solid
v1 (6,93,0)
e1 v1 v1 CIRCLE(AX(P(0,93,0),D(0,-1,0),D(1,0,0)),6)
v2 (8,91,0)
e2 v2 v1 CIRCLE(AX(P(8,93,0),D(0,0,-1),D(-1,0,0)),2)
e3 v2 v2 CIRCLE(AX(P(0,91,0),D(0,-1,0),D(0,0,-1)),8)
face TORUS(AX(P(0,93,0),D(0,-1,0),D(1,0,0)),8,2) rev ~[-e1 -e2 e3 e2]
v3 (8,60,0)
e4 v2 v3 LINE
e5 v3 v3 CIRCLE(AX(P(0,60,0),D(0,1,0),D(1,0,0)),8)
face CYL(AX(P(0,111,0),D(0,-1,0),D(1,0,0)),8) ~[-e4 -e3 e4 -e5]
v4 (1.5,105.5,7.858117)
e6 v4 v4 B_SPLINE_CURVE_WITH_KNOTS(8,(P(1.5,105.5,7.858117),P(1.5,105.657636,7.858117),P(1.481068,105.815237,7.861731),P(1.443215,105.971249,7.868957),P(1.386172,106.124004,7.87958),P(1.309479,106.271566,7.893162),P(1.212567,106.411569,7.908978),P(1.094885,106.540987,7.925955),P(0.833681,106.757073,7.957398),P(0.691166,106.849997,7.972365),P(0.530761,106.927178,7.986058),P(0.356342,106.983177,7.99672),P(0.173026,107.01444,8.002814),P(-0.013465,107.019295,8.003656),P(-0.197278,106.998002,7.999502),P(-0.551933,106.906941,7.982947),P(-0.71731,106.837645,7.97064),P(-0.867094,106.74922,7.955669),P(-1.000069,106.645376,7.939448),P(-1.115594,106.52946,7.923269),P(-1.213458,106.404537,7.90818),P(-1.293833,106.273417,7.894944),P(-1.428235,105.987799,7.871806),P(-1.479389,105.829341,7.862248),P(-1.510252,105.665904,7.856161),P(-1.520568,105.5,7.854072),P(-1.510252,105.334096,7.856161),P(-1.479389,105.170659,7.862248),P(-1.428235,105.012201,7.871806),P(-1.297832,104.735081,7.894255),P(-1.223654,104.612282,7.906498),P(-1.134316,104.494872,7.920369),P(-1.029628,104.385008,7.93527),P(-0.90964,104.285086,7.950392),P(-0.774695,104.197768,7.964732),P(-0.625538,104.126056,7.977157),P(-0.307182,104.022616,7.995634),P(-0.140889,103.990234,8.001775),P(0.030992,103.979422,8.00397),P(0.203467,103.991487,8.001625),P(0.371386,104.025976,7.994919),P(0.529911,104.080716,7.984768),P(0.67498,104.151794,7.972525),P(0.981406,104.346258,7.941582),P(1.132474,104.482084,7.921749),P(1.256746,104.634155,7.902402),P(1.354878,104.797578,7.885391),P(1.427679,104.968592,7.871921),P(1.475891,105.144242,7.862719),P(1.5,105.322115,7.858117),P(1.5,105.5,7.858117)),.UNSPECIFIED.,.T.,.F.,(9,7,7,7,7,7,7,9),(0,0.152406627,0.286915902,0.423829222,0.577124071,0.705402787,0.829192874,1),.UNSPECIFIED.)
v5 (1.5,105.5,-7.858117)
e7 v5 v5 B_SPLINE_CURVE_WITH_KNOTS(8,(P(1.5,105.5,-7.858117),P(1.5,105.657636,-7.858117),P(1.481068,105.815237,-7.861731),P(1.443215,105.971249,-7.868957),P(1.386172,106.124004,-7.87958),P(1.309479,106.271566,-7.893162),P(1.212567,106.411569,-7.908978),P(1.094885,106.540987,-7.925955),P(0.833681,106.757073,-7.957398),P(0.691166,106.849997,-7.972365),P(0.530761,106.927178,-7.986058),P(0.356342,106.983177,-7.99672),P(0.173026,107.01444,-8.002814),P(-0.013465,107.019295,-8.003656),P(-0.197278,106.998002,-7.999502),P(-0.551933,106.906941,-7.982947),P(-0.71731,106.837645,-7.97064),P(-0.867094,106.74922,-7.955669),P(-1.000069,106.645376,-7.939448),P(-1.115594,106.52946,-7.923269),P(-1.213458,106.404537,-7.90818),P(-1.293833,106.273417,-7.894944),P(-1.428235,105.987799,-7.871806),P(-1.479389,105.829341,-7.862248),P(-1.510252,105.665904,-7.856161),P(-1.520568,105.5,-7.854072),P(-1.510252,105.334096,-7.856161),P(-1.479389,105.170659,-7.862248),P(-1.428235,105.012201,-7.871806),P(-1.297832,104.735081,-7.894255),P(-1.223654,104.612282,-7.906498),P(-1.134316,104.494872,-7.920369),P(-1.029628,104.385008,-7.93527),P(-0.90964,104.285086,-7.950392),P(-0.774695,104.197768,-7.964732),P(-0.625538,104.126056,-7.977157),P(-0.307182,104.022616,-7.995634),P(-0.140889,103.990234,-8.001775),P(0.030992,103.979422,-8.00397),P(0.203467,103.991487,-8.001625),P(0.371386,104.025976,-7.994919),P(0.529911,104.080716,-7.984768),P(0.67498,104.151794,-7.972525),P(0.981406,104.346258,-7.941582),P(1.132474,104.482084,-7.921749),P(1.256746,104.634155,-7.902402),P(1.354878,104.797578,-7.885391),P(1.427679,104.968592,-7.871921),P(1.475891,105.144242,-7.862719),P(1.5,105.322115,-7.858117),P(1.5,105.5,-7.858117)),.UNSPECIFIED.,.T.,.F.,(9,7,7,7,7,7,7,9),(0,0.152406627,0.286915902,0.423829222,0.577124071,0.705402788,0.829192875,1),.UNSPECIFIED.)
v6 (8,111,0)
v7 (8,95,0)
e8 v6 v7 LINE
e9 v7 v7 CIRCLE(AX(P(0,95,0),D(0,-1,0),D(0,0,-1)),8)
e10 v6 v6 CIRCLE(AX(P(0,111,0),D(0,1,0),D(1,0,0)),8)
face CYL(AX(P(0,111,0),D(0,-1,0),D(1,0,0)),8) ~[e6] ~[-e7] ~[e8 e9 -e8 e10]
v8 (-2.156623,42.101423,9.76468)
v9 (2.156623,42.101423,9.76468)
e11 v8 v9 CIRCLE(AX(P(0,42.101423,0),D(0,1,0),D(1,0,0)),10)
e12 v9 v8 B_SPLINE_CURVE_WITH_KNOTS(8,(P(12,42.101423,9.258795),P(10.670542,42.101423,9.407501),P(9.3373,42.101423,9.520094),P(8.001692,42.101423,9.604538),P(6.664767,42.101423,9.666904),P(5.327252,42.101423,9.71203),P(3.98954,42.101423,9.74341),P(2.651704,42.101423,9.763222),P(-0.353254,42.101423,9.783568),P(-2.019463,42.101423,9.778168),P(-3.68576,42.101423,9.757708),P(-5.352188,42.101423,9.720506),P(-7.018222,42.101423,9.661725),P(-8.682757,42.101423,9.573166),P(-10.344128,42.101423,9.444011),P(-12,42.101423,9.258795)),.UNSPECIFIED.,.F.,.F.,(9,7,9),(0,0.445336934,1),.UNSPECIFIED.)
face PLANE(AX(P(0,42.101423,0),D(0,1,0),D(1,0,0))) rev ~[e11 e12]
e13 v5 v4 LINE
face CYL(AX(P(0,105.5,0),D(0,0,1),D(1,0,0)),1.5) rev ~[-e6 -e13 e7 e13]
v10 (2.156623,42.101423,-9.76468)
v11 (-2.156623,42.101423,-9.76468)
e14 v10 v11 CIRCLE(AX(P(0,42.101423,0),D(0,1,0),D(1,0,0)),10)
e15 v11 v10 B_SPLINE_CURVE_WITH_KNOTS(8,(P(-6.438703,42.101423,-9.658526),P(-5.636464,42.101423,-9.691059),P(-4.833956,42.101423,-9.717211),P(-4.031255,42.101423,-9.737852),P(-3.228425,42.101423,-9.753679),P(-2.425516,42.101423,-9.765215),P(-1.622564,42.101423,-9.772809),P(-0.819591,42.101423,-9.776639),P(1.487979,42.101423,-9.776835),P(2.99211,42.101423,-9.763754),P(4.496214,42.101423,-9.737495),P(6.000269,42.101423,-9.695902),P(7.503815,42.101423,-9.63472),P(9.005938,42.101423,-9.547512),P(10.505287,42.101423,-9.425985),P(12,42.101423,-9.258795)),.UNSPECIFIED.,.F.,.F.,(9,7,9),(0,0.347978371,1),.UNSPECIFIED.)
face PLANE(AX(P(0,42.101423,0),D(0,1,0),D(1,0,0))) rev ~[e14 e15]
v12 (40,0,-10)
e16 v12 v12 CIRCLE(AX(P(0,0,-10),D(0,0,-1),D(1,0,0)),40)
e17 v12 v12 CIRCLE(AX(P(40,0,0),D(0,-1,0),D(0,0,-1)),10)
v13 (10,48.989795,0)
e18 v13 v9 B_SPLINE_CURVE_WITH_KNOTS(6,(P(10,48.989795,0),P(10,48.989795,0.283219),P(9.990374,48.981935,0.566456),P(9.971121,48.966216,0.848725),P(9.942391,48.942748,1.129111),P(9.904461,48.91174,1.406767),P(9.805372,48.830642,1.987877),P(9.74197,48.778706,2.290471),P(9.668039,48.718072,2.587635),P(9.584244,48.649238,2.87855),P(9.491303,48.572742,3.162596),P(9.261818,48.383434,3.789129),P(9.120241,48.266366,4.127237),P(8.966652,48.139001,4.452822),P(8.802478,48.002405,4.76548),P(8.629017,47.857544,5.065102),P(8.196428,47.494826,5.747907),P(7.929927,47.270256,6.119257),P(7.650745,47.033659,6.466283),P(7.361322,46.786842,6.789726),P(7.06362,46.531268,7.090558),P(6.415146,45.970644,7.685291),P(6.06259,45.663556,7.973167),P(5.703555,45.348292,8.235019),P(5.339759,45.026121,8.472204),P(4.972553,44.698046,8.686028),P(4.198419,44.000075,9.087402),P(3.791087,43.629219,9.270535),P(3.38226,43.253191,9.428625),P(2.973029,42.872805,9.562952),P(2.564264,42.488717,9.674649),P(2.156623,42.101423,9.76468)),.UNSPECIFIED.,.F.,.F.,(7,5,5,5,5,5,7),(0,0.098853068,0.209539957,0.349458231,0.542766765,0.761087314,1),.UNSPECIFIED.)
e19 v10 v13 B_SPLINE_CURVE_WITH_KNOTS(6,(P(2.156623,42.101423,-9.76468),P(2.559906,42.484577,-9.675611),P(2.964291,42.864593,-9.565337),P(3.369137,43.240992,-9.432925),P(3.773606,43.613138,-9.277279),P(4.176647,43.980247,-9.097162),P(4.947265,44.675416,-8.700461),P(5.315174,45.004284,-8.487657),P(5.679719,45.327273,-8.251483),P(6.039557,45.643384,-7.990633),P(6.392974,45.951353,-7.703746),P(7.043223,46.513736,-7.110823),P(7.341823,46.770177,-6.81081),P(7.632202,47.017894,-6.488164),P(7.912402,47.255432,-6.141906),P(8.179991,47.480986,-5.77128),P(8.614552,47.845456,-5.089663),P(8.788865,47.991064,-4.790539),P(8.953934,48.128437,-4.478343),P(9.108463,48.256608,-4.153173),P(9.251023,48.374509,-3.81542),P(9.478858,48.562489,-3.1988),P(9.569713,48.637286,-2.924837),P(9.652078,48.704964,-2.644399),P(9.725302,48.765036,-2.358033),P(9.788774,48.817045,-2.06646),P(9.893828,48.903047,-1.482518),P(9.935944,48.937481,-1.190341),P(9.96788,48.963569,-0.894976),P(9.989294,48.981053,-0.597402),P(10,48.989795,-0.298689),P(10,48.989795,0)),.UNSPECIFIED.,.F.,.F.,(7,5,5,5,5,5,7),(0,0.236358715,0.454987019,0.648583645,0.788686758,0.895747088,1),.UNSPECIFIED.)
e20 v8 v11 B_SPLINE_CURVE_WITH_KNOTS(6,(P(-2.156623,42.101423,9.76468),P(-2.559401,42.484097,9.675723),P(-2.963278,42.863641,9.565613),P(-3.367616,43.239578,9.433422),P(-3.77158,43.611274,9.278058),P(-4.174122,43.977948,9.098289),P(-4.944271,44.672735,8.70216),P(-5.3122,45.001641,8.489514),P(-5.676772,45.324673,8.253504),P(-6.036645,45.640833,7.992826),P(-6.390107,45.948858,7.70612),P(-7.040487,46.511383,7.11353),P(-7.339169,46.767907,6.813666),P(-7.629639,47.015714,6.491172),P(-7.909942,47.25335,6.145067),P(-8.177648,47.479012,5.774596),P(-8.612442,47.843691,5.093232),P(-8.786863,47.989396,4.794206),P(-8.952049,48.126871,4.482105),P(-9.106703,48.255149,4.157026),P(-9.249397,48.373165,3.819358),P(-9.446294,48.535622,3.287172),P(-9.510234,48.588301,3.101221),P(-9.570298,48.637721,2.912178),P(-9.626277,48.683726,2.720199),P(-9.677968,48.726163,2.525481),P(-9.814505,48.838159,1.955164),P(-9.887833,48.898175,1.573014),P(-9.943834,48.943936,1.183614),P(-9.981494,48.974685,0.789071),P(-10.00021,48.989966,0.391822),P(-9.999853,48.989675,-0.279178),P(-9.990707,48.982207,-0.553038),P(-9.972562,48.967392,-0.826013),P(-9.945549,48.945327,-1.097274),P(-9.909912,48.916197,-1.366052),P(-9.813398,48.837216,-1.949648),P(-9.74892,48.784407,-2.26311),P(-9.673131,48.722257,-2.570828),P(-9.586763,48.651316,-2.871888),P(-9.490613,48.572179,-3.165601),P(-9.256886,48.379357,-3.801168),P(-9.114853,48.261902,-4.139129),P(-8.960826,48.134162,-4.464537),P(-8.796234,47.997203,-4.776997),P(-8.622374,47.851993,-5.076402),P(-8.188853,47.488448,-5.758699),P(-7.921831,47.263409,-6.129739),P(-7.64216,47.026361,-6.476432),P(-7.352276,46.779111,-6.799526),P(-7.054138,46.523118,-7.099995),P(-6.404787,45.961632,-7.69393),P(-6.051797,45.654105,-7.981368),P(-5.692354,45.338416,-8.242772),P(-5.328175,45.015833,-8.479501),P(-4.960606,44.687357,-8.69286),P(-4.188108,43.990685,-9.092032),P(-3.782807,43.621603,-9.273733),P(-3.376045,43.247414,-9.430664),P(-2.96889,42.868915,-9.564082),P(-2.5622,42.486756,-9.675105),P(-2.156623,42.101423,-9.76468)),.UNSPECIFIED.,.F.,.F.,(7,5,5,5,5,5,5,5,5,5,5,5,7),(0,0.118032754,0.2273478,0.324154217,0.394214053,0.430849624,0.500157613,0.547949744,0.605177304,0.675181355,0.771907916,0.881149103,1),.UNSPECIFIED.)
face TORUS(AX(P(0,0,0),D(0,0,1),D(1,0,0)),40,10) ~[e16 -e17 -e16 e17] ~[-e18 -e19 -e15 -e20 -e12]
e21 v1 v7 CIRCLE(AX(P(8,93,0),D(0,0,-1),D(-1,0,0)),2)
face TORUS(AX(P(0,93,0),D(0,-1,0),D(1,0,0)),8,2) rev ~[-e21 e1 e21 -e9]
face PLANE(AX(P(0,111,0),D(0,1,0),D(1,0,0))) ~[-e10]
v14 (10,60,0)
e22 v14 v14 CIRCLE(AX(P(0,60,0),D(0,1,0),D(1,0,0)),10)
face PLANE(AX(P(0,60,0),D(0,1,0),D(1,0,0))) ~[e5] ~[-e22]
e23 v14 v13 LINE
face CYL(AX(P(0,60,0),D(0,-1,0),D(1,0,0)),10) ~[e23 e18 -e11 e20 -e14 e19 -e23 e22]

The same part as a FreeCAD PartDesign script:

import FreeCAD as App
import Part
import Sketcher

V = App.Vector

doc = App.newDocument("Part")
body = doc.addObject("PartDesign::Body", "Body")

# Sketch on YZ plane
sketch1 = body.newObject("Sketcher::SketchObject", "Sketch")
sketch1.AttachmentSupport = (doc.getObject("YZ_Plane"), [""])
sketch1.MapMode = "FlatFace"
sketch1.addGeometry(Part.Circle(V(40, 0, 0), V(0, 0, 1), 10), False)
sketch1.addConstraint([
    Sketcher.Constraint("PointOnObject", 0, 3, -1),
    Sketcher.Constraint("Diameter", 0, 20.0),
    Sketcher.Constraint("DistanceX", -1, 1, 0, 3, 40.0),
])
revolution = body.newObject("PartDesign::Revolution", "Revolution")
revolution.Profile = sketch1
revolution.ReferenceAxis = (sketch1, ["V_Axis"])
revolution.Angle = 360

# Sketch on XY plane
sketch2 = body.newObject("Sketcher::SketchObject", "Sketch001")
sketch2.AttachmentSupport = (doc.getObject("XY_Plane"), [""])
sketch2.MapMode = "FlatFace"
sketch2.addGeometry([
    Part.LineSegment(V(0, 111, 0), V(0, 42.1, 0)),  # 0
    Part.LineSegment(V(0, 42.1, 0), V(10, 42.1, 0)),  # 1
    Part.LineSegment(V(10, 42.1, 0), V(10, 60, 0)),  # 2
    Part.LineSegment(V(10, 60, 0), V(8, 60, 0)),  # 3
    Part.LineSegment(V(8, 60, 0), V(8, 111, 0)),  # 4
    Part.LineSegment(V(8, 111, 0), V(0, 111, 0)),  # 5
], False)
sketch2.addConstraint([
    Sketcher.Constraint("Coincident", 0, 2, 1, 1),
    Sketcher.Constraint("Coincident", 1, 2, 2, 1),
    Sketcher.Constraint("Coincident", 2, 2, 3, 1),
    Sketcher.Constraint("Coincident", 3, 2, 4, 1),
    Sketcher.Constraint("Coincident", 4, 2, 5, 1),
    Sketcher.Constraint("Coincident", 5, 2, 0, 1),
    Sketcher.Constraint("Vertical", 0),
    Sketcher.Constraint("Horizontal", 1),
    Sketcher.Constraint("Vertical", 2),
    Sketcher.Constraint("Horizontal", 3),
    Sketcher.Constraint("Vertical", 4),
    Sketcher.Constraint("Horizontal", 5),
    Sketcher.Constraint("PointOnObject", 0, 2, -2),
    Sketcher.Constraint("DistanceX", 1, 1, 1, 2, 10.0),
    Sketcher.Constraint("DistanceX", 3, 2, 3, 1, 2.0),
    Sketcher.Constraint("DistanceY", 4, 1, 4, 2, 51.0),
    Sketcher.Constraint("DistanceY", -1, 1, 2, 2, 60.0),
    Sketcher.Constraint("DistanceY", 0, 2, 0, 1, 68.898577),
])
revolution2 = body.newObject("PartDesign::Revolution", "Revolution001")
revolution2.Profile = sketch2
revolution2.ReferenceAxis = (sketch2, ["V_Axis"])
revolution2.Angle = 360

# Sketch on XY plane
sketch3 = body.newObject("Sketcher::SketchObject", "Sketch002")
sketch3.AttachmentSupport = (doc.getObject("XY_Plane"), [""])
sketch3.MapMode = "FlatFace"
sketch3.addGeometry(Part.Circle(V(0, 105.5, 0), V(0, 0, 1), 1.5), False)
sketch3.addConstraint([
    Sketcher.Constraint("PointOnObject", 0, 3, -2),
    Sketcher.Constraint("Diameter", 0, 3.0),
    Sketcher.Constraint("DistanceY", -1, 1, 0, 3, 105.5),
])
pocket1 = body.newObject("PartDesign::Pocket", "Pocket")
pocket1.Profile = sketch3
pocket1.Length = 30
pocket1.Midplane = True

# Sketch on XY plane
sketch4 = body.newObject("Sketcher::SketchObject", "Sketch003")
sketch4.AttachmentSupport = (doc.getObject("XY_Plane"), [""])
sketch4.MapMode = "FlatFace"
sketch4.addGeometry(Part.Circle(V(-8, 93, 0), V(0, 0, 1), 2), False)
sketch4.addConstraint([
    Sketcher.Constraint("Diameter", 0, 4.0),
    Sketcher.Constraint("DistanceX", 0, 3, -1, 1, 8.0),
    Sketcher.Constraint("DistanceY", -1, 1, 0, 3, 93.0),
])
groove = body.newObject("PartDesign::Groove", "Groove")
groove.Profile = sketch4
groove.ReferenceAxis = (sketch4, ["V_Axis"])
groove.Angle = 360

doc.recompute()
